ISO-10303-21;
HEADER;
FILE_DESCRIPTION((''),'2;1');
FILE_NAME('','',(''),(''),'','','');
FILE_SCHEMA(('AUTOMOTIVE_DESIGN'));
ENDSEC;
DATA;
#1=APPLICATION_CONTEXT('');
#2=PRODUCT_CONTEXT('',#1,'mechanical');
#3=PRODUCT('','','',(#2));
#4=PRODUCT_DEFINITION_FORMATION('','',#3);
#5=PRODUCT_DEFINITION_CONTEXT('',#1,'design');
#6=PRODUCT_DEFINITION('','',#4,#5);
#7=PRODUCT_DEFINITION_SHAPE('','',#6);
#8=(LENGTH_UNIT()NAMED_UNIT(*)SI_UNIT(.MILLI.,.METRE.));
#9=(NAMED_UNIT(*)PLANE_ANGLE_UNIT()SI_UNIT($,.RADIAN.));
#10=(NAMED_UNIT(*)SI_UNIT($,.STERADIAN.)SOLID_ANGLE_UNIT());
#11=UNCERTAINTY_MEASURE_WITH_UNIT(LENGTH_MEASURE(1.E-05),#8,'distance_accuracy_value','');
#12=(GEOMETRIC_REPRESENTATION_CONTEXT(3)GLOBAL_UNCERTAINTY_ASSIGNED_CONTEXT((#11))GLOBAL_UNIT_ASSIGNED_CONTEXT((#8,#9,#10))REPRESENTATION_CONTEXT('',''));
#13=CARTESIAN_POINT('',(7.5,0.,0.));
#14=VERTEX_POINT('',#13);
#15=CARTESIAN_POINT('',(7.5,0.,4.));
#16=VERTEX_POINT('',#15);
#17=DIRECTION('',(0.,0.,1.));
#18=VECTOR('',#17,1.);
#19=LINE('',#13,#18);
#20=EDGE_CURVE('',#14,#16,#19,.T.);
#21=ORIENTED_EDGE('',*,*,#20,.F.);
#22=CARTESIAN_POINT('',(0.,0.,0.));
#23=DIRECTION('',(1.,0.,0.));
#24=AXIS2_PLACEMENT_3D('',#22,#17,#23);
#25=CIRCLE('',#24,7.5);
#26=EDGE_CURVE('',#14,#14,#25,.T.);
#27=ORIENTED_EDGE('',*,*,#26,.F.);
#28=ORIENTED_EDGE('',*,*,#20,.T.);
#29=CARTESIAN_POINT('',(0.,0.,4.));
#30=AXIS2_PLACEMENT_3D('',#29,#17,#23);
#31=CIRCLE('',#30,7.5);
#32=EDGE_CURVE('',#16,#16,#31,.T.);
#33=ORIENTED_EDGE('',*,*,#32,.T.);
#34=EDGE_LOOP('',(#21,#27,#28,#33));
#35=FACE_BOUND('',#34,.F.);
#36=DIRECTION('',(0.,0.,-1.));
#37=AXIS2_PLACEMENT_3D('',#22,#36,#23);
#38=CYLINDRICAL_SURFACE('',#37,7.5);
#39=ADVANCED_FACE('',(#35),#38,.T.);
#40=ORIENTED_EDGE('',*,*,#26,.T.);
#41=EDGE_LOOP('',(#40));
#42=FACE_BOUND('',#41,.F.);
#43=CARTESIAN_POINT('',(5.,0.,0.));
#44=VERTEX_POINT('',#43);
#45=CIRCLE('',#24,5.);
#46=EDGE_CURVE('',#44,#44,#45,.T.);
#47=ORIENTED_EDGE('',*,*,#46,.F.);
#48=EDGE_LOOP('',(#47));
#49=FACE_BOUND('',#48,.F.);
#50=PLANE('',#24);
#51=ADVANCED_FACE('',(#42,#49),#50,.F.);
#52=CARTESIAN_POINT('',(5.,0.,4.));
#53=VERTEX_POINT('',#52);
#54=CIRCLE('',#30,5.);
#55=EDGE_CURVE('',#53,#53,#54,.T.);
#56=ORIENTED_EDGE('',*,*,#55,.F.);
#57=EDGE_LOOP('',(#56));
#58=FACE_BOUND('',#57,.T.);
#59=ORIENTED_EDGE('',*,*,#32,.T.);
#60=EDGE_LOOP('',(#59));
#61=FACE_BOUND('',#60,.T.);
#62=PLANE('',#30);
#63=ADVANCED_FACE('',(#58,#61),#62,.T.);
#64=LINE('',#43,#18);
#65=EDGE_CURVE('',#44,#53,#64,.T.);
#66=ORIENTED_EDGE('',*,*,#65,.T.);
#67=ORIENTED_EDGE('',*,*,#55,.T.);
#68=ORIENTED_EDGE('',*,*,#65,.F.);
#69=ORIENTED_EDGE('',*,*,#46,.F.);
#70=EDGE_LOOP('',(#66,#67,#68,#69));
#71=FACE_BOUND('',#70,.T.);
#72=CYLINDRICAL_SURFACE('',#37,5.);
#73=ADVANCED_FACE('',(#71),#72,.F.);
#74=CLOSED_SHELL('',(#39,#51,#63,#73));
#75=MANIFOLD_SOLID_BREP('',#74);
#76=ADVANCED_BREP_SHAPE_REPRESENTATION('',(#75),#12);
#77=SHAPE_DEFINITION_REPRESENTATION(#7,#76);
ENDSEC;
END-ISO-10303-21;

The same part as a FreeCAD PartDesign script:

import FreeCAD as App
import Part
import Sketcher

V = App.Vector
Q = App.Units.Quantity

doc = App.newDocument("Part")
body = doc.addObject("PartDesign::Body", "Body")

# Sketch on XY plane
sketch1 = body.newObject("Sketcher::SketchObject", "Sketch")
sketch1.AttachmentSupport = (doc.getObject("XY_Plane"), [""])
sketch1.MapMode = "FlatFace"
sketch1.addGeometry([
    Part.Circle(V(0, 0, 0), V(0, 0, 1), 7.5),
    Part.Circle(V(0, 0, 0), V(0, 0, 1), 5),
], False)
sketch1.addConstraint([
    Sketcher.Constraint("Coincident", 0, 3, -1, 1),
    Sketcher.Constraint("Coincident", 1, 3, -1, 1),
    Sketcher.Constraint("Diameter", 0, Q("15 mm")),
    Sketcher.Constraint("Diameter", 1, Q("10 mm")),
])
pad1 = body.newObject("PartDesign::Pad", "Pad")
pad1.Profile = sketch1
pad1.Length = 4

doc.recompute()
